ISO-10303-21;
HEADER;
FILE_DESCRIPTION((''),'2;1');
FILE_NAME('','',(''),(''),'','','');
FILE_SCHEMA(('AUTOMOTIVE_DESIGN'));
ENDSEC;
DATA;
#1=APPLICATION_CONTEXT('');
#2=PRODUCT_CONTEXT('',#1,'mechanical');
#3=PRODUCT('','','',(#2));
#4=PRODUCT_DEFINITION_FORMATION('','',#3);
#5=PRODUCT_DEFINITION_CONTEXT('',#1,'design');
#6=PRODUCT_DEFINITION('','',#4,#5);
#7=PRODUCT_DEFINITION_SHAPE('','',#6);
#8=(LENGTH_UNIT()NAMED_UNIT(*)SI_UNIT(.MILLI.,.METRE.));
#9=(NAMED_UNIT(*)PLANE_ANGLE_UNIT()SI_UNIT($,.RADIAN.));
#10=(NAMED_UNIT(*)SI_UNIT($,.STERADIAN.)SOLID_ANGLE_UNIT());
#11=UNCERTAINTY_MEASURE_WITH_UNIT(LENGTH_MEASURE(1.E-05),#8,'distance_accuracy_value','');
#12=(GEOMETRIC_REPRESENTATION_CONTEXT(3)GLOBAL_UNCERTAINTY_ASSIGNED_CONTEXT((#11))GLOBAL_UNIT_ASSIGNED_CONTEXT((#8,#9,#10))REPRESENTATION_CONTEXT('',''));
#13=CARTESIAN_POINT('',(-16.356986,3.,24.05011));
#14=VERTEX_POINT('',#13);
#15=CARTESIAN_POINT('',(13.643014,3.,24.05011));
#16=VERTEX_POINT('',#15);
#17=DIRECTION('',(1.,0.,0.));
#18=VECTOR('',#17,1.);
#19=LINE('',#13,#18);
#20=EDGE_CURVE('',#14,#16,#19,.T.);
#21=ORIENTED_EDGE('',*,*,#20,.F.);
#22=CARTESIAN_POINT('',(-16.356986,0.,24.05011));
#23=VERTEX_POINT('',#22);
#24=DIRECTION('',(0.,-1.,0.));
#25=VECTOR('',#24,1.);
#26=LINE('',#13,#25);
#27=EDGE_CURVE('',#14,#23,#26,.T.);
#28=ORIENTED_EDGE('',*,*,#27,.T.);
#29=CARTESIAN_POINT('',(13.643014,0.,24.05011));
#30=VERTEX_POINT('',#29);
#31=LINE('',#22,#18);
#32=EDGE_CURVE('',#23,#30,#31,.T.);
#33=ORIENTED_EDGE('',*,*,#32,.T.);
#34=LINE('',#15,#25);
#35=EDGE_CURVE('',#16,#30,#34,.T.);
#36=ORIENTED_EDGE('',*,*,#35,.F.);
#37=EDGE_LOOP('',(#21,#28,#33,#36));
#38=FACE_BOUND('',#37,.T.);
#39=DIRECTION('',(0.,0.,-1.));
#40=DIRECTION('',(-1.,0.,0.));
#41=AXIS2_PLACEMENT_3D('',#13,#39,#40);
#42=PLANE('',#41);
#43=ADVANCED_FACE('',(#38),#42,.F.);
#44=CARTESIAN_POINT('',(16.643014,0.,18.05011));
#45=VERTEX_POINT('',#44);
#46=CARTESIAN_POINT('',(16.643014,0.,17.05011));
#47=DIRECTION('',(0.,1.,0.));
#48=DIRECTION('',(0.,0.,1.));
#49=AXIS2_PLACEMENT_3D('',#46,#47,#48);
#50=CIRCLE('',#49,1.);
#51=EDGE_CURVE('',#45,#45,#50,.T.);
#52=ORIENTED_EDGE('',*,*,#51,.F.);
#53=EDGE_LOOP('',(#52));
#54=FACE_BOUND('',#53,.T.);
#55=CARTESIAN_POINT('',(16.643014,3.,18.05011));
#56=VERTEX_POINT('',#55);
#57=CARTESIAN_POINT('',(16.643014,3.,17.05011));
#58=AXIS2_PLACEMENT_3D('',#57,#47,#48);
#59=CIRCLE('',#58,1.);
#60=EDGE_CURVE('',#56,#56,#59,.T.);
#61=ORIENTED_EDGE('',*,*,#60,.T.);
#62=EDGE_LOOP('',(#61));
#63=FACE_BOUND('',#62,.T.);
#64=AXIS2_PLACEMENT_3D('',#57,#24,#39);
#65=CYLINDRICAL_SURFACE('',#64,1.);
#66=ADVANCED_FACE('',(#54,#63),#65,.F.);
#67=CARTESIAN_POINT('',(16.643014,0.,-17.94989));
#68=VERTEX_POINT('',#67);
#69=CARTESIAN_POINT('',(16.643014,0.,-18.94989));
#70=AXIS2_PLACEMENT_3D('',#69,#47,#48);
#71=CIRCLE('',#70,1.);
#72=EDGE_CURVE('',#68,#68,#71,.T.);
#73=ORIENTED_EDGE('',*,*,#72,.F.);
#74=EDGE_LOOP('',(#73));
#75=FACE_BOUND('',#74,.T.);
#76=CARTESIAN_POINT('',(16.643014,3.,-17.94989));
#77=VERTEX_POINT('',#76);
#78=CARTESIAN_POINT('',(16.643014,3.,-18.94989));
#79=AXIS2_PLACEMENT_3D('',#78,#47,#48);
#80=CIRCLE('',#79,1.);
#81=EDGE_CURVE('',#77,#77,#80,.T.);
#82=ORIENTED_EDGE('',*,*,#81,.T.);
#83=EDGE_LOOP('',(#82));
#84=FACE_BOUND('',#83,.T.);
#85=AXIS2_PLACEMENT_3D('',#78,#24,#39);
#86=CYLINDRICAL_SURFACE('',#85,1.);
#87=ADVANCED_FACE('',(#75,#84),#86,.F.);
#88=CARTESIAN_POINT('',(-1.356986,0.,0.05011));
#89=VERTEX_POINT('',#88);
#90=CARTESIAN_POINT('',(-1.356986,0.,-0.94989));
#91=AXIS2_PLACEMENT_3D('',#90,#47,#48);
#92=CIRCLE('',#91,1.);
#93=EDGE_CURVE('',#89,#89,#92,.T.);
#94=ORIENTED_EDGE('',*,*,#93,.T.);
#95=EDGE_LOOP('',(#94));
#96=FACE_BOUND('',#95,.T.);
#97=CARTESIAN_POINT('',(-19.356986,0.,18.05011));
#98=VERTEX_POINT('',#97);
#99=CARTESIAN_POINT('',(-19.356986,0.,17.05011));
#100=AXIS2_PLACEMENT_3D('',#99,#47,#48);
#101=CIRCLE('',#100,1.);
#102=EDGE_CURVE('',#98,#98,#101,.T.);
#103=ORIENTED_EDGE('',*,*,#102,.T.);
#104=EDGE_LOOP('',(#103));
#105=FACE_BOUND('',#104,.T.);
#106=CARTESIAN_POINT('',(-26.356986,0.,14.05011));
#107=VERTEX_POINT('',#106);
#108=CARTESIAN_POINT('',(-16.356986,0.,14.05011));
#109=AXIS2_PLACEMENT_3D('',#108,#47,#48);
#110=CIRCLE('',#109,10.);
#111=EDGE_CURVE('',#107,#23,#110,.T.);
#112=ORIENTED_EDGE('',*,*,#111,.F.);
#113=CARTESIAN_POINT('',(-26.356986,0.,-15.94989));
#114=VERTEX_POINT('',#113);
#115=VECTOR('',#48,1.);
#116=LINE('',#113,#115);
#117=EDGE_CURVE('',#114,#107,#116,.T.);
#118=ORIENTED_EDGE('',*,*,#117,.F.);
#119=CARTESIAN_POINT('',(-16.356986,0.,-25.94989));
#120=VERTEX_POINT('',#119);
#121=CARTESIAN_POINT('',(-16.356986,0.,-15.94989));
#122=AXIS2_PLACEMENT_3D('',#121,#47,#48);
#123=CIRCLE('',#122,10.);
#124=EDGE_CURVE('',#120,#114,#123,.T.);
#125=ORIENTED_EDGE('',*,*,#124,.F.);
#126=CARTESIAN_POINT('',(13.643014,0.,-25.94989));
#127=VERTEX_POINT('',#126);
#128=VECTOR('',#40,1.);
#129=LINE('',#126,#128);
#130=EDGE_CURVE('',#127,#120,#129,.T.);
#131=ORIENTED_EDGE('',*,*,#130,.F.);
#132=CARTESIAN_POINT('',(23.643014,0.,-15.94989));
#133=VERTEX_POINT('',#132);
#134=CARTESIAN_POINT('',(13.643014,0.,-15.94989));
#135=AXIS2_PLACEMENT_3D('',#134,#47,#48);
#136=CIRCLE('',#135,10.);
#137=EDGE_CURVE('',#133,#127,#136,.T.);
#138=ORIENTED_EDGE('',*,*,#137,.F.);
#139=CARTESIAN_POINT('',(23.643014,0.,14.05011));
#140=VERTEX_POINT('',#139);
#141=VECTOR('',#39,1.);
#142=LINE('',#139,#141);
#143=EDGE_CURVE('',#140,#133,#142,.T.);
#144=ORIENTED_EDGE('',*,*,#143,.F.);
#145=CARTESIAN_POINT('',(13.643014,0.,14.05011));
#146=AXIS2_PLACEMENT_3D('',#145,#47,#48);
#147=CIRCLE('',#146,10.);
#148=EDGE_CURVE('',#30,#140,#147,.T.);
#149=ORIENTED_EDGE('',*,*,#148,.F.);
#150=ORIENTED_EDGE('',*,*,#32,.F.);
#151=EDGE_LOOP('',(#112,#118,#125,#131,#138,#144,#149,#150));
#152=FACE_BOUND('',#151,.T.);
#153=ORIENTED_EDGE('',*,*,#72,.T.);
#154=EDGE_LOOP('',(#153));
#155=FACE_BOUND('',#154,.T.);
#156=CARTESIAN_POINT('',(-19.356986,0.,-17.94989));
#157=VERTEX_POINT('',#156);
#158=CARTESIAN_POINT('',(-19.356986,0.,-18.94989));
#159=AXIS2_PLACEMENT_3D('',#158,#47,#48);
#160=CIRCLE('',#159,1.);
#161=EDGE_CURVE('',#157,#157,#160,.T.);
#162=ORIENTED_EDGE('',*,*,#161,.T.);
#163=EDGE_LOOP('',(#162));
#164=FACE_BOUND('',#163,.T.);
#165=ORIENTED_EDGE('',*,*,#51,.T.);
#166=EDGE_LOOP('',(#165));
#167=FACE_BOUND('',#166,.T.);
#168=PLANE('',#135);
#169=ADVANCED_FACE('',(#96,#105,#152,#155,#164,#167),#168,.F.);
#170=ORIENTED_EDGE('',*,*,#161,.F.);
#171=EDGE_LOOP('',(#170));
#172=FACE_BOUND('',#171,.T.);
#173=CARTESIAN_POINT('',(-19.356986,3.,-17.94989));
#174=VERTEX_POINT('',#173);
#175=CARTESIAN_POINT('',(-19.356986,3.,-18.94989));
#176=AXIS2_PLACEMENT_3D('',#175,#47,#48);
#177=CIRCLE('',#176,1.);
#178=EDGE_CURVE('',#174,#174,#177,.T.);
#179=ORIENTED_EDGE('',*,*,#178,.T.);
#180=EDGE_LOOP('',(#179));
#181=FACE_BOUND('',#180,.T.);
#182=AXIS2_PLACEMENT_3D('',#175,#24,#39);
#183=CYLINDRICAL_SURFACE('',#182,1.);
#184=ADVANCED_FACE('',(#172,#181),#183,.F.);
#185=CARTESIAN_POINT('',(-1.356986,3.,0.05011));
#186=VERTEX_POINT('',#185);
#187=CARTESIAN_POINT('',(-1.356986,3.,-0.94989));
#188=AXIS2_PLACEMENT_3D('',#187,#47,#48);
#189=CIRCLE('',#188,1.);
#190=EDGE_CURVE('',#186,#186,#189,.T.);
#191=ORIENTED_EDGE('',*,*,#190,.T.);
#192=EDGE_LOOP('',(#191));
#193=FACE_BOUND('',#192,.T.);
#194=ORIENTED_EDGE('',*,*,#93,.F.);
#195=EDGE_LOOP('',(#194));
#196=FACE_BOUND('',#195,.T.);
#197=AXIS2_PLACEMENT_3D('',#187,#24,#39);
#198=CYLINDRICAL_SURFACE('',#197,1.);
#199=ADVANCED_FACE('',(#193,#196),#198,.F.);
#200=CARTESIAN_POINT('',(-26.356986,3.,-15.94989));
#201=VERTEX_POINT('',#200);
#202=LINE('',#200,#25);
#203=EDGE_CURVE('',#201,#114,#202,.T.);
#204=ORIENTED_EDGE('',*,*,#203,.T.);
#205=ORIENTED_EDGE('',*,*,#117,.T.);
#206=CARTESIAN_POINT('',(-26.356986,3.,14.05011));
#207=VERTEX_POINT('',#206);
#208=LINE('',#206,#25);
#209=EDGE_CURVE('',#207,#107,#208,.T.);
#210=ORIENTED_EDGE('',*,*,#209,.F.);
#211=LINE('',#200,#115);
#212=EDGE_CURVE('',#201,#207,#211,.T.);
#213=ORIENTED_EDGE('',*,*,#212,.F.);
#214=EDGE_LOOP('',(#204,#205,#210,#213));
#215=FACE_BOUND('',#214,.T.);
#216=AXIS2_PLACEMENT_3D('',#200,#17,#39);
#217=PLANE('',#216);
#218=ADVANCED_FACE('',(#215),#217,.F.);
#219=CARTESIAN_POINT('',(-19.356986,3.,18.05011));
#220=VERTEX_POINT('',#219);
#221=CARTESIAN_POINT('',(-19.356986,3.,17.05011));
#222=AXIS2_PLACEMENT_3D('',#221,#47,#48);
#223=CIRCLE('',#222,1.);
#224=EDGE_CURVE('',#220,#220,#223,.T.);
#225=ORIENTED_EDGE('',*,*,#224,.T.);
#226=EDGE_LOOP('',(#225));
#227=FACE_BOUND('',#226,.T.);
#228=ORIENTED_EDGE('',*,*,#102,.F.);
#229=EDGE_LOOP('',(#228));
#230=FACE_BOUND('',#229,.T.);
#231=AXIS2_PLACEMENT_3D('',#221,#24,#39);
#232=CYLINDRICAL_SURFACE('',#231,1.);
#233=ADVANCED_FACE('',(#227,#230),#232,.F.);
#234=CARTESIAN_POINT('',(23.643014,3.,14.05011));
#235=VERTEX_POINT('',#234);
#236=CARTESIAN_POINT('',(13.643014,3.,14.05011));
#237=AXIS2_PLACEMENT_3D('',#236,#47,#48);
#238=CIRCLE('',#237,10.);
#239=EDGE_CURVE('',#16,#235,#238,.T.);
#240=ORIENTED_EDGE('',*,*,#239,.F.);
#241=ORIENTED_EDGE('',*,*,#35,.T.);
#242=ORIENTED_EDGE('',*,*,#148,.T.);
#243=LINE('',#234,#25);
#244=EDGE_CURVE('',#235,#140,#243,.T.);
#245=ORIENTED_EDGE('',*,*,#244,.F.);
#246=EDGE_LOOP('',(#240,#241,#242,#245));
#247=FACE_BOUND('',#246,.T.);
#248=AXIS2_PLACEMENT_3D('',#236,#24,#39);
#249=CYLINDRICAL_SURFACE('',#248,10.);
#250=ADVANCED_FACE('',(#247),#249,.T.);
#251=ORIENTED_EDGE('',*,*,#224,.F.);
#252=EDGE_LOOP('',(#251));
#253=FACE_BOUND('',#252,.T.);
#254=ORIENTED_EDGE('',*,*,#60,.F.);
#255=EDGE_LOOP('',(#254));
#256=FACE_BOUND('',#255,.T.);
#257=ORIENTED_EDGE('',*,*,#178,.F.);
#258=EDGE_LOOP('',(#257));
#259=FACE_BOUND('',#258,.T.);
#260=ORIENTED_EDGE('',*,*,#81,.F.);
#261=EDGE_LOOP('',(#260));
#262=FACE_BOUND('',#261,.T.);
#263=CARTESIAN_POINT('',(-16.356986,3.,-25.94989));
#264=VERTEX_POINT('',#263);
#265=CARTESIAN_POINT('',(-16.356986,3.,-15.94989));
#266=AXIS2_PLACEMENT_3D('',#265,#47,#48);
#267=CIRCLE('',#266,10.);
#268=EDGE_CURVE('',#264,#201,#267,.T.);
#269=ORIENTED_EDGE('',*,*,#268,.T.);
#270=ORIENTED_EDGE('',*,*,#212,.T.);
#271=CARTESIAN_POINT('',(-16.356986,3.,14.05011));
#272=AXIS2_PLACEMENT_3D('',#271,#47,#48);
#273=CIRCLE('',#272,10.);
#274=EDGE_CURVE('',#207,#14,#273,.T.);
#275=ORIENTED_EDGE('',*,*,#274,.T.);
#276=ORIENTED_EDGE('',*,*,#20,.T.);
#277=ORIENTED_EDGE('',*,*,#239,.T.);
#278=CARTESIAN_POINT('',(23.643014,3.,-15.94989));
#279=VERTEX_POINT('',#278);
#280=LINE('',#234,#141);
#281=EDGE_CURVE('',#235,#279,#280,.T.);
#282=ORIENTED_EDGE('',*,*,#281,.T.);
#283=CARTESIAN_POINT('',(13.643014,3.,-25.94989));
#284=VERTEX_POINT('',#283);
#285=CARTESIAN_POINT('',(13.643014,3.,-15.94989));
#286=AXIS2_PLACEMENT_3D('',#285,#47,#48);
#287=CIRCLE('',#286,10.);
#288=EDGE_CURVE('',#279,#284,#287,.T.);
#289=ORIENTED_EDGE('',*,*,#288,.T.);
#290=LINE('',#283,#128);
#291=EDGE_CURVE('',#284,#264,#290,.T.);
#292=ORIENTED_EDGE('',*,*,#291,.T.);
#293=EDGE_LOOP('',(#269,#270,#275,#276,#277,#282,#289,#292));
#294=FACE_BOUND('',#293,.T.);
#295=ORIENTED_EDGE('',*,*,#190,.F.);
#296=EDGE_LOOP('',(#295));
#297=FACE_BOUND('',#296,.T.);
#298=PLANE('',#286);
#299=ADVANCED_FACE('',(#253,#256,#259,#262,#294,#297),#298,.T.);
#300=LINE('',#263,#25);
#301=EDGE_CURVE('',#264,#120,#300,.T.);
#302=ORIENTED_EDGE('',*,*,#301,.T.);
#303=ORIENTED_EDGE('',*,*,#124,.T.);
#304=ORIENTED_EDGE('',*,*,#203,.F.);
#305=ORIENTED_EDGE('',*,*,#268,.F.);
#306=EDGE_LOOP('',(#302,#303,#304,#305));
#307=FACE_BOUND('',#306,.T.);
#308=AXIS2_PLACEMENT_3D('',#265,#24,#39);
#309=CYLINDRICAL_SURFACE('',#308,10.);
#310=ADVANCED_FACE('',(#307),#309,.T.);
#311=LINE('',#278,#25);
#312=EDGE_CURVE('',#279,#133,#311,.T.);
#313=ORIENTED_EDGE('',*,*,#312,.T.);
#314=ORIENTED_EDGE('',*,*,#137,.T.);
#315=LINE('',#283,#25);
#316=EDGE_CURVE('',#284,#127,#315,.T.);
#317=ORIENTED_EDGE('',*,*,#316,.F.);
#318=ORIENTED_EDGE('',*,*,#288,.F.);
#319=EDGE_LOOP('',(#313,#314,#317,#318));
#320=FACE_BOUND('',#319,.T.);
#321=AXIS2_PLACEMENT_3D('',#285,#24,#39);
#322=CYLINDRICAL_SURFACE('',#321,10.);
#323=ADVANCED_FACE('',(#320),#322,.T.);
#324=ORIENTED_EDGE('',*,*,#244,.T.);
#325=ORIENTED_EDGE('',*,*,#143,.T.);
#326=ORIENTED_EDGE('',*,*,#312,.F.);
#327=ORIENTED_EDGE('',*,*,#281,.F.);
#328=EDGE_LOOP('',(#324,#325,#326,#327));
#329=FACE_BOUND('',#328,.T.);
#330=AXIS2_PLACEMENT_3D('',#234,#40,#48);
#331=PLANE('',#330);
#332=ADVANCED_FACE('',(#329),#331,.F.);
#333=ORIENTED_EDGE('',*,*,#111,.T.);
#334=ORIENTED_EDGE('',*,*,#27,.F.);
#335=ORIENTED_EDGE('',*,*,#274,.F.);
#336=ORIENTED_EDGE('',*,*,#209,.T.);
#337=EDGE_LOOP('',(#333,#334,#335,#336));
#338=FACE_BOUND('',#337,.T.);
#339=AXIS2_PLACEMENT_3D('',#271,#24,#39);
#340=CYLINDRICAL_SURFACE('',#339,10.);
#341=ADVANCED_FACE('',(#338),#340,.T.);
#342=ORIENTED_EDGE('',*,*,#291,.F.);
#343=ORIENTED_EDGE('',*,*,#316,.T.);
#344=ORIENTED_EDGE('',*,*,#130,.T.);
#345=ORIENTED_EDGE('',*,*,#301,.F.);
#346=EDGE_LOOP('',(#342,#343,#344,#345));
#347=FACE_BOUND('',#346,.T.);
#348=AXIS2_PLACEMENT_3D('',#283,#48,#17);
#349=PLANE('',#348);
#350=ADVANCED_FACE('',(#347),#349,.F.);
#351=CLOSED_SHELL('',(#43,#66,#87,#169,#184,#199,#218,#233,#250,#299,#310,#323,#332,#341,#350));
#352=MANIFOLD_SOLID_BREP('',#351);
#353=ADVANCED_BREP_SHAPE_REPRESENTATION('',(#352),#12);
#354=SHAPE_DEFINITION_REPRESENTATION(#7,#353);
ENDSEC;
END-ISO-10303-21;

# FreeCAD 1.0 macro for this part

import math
import FreeCAD as App
import Part
import Sketcher
from FreeCAD import Vector
Q = App.Units.Quantity

doc = App.newDocument("Part")
params = doc.addObject("Spreadsheet::Sheet", "Params")
for row, (alias, value) in enumerate([
    ("sketch1_diameter", "2 mm"),
    ("sketch1_radius", "10 mm"),
    ("sketch1_width", "30 mm"),
    ("pad1_length", "3 mm"),
], start=1):
    params.set(f"A{row}", alias)
    params.set(f"B{row}", "=" + value)
    params.setAlias(f"B{row}", alias)

body = doc.addObject("PartDesign::Body", "Body")

# Sketch on XZ plane
sketch1 = body.newObject("Sketcher::SketchObject", "Sketch")
sketch1.AttachmentSupport = (doc.getObject("XZ_Plane"), [""])
sketch1.MapMode = "FlatFace"
sketch1.addGeometry([
    Part.LineSegment(Vector(13.6, -25.9, 0), Vector(-16.4, -25.9, 0)),  # 0
    Part.ArcOfCircle(Part.Circle(Vector(-16.4, -15.9, 0), Vector(0, 0, 1), 10), math.radians(180), math.radians(270)),  # 1
    Part.LineSegment(Vector(-26.4, -15.9, 0), Vector(-26.4, 14.1, 0)),  # 2
    Part.ArcOfCircle(Part.Circle(Vector(-16.4, 14.1, 0), Vector(0, 0, 1), 10), math.radians(90), math.radians(180)),  # 3
    Part.LineSegment(Vector(-16.4, 24.1, 0), Vector(13.6, 24.1, 0)),  # 4
    Part.ArcOfCircle(Part.Circle(Vector(13.6, 14.1, 0), Vector(0, 0, 1), 10), math.radians(0), math.radians(90)),  # 5
    Part.LineSegment(Vector(23.6, 14.1, 0), Vector(23.6, -15.9, 0)),  # 6
    Part.ArcOfCircle(Part.Circle(Vector(13.6, -15.9, 0), Vector(0, 0, 1), 10), math.radians(-90), math.radians(0)),  # 7
    Part.Circle(Vector(-19.4, 17.1, 0), Vector(0, 0, 1), 1),  # 8
    Part.Circle(Vector(16.6, 17.1, 0), Vector(0, 0, 1), 1),  # 9
    Part.Circle(Vector(-19.4, -18.9, 0), Vector(0, 0, 1), 1),  # 10
    Part.Circle(Vector(-1.4, -0.9, 0), Vector(0, 0, 1), 1),  # 11
    Part.Circle(Vector(16.6, -18.9, 0), Vector(0, 0, 1), 1),  # 12
], False)
sketch1.addConstraint([
    Sketcher.Constraint("Tangent", 0, 2, 1, 2),
    Sketcher.Constraint("Tangent", 1, 1, 2, 1),
    Sketcher.Constraint("Tangent", 2, 2, 3, 2),
    Sketcher.Constraint("Tangent", 3, 1, 4, 1),
    Sketcher.Constraint("Tangent", 4, 2, 5, 2),
    Sketcher.Constraint("Tangent", 5, 1, 6, 1),
    Sketcher.Constraint("Tangent", 6, 2, 7, 2),
    Sketcher.Constraint("Tangent", 7, 1, 0, 1),
    Sketcher.Constraint("Horizontal", 0),
    Sketcher.Constraint("Vertical", 2),
    Sketcher.Constraint("Horizontal", 4),
    Sketcher.Constraint("Vertical", 6),
    Sketcher.Constraint("Equal", 1, 3),
    Sketcher.Constraint("Equal", 3, 5),
    Sketcher.Constraint("Equal", 5, 7),
    Sketcher.Constraint("Equal", 8, 9),
    Sketcher.Constraint("Equal", 9, 10),
    Sketcher.Constraint("Equal", 10, 11),
    Sketcher.Constraint("Equal", 11, 12),
    Sketcher.Constraint("Horizontal", 8, 3, 9, 3),
    Sketcher.Constraint("Horizontal", 10, 3, 12, 3),
    Sketcher.Constraint("Vertical", 8, 3, 10, 3),
    Sketcher.Constraint("Vertical", 9, 3, 12, 3),
    Sketcher.Constraint("Equal", 4, 2),
    Sketcher.Constraint("Diameter", 8, Q("2 mm")),
    Sketcher.Constraint("Radius", 1, Q("10 mm")),
    Sketcher.Constraint("DistanceX", 0, 2, 0, 1, Q("30 mm")),
    Sketcher.Constraint("DistanceX", 8, 3, 3, 3, Q("3 mm")),
    Sketcher.Constraint("DistanceY", 3, 3, 8, 3, Q("3 mm")),
    Sketcher.Constraint("DistanceX", 5, 3, 9, 3, Q("3 mm")),
    Sketcher.Constraint("DistanceY", 10, 3, 1, 3, Q("3 mm")),
    Sketcher.Constraint("DistanceX", 1, 3, 11, 3, Q("15 mm")),
    Sketcher.Constraint("DistanceY", 1, 3, 11, 3, Q("15 mm")),
    Sketcher.Constraint("DistanceY", 1, 3, -1, 1, Q("15.94989 mm")),
    Sketcher.Constraint("DistanceX", 1, 3, -1, 1, Q("16.356986 mm")),
])
sketch1.setExpression("Constraints[24]", "Params.sketch1_diameter")
sketch1.setExpression("Constraints[25]", "Params.sketch1_radius")
sketch1.setExpression("Constraints[26]", "Params.sketch1_width")
pad1 = body.newObject("PartDesign::Pad", "Pad")
pad1.Profile = sketch1
pad1.setExpression("Length", "Params.pad1_length")
pad1.Reversed = True

doc.recompute()
